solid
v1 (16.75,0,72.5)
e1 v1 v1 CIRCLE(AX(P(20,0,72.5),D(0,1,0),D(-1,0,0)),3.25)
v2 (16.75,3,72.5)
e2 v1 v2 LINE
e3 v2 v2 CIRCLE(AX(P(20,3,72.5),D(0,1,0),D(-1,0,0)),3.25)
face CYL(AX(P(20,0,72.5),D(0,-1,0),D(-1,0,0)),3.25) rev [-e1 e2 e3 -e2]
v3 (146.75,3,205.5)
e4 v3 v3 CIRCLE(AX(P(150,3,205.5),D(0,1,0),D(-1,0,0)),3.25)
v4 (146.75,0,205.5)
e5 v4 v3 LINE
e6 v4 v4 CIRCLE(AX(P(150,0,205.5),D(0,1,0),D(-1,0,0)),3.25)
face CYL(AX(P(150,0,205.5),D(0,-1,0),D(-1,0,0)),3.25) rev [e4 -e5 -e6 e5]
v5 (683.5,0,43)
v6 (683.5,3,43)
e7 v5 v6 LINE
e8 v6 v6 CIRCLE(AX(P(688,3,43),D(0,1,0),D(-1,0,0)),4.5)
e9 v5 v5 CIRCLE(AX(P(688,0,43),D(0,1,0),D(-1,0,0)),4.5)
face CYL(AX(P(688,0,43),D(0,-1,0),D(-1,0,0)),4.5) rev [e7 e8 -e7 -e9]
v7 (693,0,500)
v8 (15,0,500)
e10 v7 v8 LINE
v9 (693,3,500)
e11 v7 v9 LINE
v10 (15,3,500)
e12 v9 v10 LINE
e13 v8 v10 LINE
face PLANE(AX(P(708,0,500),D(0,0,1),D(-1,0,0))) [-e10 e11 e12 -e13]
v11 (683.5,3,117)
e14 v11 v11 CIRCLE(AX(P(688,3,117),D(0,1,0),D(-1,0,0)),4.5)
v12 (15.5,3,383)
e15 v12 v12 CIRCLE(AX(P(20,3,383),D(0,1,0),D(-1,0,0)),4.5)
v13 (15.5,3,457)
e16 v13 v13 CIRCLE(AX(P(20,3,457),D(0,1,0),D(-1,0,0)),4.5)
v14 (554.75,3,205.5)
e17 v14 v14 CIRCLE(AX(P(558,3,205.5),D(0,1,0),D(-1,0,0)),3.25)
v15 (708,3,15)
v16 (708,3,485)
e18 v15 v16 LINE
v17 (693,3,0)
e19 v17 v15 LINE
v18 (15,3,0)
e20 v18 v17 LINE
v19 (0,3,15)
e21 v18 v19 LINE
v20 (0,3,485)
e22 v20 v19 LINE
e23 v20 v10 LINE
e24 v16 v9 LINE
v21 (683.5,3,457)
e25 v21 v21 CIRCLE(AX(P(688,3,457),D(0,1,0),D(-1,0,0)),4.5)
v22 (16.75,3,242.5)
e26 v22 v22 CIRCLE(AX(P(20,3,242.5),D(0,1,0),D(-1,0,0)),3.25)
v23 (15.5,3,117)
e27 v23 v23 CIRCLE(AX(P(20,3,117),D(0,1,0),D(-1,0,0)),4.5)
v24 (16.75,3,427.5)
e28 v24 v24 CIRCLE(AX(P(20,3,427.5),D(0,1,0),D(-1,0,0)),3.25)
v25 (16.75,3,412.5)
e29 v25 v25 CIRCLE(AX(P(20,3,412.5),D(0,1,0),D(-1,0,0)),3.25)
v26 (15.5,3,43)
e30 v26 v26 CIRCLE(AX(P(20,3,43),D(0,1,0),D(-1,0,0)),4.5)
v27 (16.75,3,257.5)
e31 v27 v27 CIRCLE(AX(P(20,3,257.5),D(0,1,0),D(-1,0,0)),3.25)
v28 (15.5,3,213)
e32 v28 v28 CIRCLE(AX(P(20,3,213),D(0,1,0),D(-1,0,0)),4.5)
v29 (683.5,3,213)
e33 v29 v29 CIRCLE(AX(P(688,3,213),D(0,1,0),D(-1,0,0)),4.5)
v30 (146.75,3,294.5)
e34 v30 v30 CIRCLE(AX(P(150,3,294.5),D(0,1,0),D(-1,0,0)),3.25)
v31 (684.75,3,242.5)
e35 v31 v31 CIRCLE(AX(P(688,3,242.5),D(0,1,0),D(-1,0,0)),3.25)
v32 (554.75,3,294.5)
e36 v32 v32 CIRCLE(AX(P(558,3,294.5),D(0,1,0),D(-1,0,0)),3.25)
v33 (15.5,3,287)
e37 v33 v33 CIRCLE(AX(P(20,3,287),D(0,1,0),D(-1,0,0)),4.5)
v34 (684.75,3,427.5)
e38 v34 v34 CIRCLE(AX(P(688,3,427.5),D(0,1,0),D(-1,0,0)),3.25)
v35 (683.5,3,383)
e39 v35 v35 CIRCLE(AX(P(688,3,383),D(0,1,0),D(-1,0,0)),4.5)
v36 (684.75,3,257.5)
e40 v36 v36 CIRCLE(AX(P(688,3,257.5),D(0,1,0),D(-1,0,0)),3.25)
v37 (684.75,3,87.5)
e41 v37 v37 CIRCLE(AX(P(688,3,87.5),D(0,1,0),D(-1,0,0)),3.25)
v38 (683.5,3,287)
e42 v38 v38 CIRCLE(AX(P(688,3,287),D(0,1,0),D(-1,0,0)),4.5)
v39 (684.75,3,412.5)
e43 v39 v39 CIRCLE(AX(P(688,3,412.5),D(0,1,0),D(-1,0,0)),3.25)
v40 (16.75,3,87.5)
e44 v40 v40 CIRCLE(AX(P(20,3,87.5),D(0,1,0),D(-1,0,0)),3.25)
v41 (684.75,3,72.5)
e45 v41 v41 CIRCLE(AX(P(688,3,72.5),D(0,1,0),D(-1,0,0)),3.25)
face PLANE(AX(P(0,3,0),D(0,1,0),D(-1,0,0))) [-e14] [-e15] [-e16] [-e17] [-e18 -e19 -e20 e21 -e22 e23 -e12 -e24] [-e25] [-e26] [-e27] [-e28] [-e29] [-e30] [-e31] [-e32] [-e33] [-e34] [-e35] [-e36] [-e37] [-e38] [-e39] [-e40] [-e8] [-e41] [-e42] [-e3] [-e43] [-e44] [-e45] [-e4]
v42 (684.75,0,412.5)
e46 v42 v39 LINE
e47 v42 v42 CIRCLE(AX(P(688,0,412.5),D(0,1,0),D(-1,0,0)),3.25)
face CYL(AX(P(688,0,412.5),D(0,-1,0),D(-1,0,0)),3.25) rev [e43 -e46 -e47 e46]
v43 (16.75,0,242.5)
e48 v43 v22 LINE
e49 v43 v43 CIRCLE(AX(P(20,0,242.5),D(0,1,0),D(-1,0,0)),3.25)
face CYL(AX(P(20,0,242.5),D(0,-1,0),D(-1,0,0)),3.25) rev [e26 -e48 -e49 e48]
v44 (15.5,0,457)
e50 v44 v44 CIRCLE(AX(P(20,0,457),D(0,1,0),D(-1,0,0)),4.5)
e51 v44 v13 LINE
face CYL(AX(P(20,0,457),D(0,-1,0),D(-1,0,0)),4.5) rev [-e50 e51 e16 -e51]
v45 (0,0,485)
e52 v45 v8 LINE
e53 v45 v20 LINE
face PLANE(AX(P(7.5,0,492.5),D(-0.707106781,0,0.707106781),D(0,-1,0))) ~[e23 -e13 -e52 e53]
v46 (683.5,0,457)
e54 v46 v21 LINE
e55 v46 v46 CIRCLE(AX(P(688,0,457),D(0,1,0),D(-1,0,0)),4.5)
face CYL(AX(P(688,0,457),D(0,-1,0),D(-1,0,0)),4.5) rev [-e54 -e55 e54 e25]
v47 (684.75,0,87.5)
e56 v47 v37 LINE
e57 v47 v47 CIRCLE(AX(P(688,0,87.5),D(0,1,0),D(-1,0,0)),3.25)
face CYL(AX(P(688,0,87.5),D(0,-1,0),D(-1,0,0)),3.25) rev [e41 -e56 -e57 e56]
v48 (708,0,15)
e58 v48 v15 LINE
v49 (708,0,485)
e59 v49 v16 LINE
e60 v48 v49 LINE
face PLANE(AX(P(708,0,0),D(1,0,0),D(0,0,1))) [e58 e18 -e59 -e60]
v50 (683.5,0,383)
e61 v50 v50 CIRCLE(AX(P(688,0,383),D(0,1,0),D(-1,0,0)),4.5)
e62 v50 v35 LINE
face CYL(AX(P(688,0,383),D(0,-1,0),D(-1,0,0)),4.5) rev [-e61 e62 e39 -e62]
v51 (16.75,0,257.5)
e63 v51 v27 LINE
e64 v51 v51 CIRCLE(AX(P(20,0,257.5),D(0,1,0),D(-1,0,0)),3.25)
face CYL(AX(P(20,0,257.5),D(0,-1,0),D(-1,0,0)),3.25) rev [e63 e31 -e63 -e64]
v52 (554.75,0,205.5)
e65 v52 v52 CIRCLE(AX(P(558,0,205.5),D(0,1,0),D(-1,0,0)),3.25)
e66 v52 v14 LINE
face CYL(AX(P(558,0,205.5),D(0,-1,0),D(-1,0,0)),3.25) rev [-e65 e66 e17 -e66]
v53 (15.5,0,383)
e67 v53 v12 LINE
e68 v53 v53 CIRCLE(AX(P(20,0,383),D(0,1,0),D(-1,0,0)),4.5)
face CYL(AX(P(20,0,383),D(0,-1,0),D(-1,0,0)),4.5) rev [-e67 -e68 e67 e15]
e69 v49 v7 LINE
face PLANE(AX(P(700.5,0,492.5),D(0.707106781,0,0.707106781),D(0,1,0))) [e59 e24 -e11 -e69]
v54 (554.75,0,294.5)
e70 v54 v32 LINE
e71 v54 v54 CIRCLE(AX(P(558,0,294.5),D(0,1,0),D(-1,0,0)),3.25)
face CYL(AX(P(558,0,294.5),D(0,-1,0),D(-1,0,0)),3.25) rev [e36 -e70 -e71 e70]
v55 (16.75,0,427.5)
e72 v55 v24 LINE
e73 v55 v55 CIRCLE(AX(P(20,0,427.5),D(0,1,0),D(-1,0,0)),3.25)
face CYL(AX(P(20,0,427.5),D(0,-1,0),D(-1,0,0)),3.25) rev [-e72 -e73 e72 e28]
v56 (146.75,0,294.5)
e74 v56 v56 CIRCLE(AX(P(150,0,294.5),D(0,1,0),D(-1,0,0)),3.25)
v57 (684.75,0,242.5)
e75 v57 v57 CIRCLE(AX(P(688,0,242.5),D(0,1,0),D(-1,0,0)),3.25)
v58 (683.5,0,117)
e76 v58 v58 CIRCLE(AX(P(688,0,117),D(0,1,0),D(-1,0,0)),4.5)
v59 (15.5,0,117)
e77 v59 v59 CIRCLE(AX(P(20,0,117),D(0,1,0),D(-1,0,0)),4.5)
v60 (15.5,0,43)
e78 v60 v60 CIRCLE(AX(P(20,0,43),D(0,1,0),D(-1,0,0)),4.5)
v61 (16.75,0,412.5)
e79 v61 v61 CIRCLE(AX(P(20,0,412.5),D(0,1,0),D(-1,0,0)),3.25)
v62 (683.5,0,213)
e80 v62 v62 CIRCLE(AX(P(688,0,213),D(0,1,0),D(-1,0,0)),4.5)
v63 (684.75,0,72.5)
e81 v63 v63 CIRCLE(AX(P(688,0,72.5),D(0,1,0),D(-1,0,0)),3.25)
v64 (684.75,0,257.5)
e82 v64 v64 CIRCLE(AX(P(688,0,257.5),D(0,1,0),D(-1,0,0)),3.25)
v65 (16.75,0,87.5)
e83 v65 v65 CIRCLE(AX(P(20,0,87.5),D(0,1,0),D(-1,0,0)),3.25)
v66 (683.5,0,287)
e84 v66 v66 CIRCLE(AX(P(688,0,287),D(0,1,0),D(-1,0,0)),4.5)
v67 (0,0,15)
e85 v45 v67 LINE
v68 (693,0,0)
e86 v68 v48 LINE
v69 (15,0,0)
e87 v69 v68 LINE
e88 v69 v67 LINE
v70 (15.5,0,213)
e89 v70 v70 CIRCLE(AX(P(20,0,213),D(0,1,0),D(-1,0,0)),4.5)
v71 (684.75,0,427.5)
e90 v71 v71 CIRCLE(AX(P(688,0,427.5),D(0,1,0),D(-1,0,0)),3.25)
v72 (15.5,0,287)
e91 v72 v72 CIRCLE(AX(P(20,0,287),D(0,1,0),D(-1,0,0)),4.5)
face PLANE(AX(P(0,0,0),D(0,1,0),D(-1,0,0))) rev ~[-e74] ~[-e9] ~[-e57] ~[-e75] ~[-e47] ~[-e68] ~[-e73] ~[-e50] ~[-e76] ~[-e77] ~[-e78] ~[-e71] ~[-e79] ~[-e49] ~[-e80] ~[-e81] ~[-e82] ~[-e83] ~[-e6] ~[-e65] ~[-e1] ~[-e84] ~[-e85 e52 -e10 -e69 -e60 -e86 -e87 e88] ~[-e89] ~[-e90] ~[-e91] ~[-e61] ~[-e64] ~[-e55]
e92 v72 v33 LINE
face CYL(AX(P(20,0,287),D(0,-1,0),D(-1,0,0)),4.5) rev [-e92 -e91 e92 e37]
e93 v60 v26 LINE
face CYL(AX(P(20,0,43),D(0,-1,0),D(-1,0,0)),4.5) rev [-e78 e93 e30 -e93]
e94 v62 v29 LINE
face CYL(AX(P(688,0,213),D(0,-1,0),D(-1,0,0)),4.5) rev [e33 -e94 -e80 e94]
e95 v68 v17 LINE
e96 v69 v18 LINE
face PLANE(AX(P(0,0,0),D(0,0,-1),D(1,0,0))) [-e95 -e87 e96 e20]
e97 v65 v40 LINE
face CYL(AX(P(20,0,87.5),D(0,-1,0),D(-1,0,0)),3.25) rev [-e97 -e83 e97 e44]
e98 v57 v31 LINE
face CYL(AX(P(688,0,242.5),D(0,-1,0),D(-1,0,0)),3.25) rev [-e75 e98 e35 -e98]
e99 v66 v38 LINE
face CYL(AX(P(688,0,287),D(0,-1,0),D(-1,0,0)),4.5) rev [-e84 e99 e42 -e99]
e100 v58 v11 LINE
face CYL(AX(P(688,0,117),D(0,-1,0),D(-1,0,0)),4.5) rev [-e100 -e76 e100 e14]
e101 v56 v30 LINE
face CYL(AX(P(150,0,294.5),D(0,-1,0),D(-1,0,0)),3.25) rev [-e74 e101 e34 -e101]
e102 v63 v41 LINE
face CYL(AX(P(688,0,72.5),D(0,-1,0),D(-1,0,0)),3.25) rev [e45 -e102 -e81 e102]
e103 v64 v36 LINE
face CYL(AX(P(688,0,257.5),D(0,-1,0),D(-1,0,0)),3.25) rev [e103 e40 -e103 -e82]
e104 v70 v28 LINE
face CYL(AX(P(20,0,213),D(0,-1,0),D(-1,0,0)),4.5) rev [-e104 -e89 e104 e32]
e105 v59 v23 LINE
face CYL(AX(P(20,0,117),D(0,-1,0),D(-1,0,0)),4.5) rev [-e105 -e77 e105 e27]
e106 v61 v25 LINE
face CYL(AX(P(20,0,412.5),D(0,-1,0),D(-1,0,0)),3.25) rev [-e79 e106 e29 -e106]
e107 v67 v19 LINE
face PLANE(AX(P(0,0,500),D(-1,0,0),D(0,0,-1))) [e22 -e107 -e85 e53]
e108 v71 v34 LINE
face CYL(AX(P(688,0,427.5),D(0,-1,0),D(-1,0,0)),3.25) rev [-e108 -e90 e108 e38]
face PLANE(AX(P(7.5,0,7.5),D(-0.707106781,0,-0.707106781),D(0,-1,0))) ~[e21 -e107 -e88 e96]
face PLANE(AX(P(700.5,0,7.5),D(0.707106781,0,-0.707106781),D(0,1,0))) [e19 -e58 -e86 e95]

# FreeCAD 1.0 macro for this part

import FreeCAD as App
import Part
import Sketcher
from FreeCAD import Vector
Q = App.Units.Quantity


def edges_at(feature, points):
    """Names of the edges that pass closest to the given points."""
    edges = feature.Shape.Edges
    near = lambda p: min(range(len(edges)), key=lambda i: edges[i].distToShape(Part.Vertex(*p))[0])
    return sorted({f"Edge{near(p) + 1}" for p in points})

doc = App.newDocument("Part")
params = doc.addObject("Spreadsheet::Sheet", "Params")
for row, (alias, value) in enumerate([
    ("sketch1_diameter", "9 mm"),
    ("sketch1_diameter2", "6.5 mm"),
    ("sketch1_width", "708 mm"),
    ("sketch1_height", "500 mm"),
    ("pad1_length", "3 mm"),
    ("chamfer_size", "15 mm"),
], start=1):
    params.set(f"A{row}", alias)
    params.set(f"B{row}", "=" + value)
    params.setAlias(f"B{row}", alias)

body = doc.addObject("PartDesign::Body", "Body")

# Sketch on XZ plane
sketch1 = body.newObject("Sketcher::SketchObject", "Sketch")
sketch1.AttachmentSupport = (doc.getObject("XZ_Plane"), [""])
sketch1.MapMode = "FlatFace"
sketch1.addGeometry([
    Part.LineSegment(Vector(708, 0, 0), Vector(0, 0, 0)),  # 0
    Part.LineSegment(Vector(0, 0, 0), Vector(0, 500, 0)),  # 1
    Part.LineSegment(Vector(0, 500, 0), Vector(708, 500, 0)),  # 2
    Part.LineSegment(Vector(708, 500, 0), Vector(708, 0, 0)),  # 3
    Part.Circle(Vector(688, 43, 0), Vector(0, 0, 1), 4.5),  # 4
    Part.Circle(Vector(688, 72.5, 0), Vector(0, 0, 1), 3.25),  # 5
    Part.Circle(Vector(688, 87.5, 0), Vector(0, 0, 1), 3.25),  # 6
    Part.Circle(Vector(688, 117, 0), Vector(0, 0, 1), 4.5),  # 7
    Part.Circle(Vector(688, 213, 0), Vector(0, 0, 1), 4.5),  # 8
    Part.Circle(Vector(688, 242.5, 0), Vector(0, 0, 1), 3.25),  # 9
    Part.Circle(Vector(558, 205.5, 0), Vector(0, 0, 1), 3.25),  # 10
    Part.Circle(Vector(20, 43, 0), Vector(0, 0, 1), 4.5),  # 11
    Part.Circle(Vector(20, 72.5, 0), Vector(0, 0, 1), 3.25),  # 12
    Part.Circle(Vector(20, 87.5, 0), Vector(0, 0, 1), 3.25),  # 13
    Part.Circle(Vector(20, 117, 0), Vector(0, 0, 1), 4.5),  # 14
    Part.Circle(Vector(150, 205.5, 0), Vector(0, 0, 1), 3.25),  # 15
    Part.Circle(Vector(20, 213, 0), Vector(0, 0, 1), 4.5),  # 16
    Part.Circle(Vector(20, 242.5, 0), Vector(0, 0, 1), 3.25),  # 17
    Part.Circle(Vector(688, 257.5, 0), Vector(0, 0, 1), 3.25),  # 18
    Part.Circle(Vector(688, 287, 0), Vector(0, 0, 1), 4.5),  # 19
    Part.Circle(Vector(558, 294.5, 0), Vector(0, 0, 1), 3.25),  # 20
    Part.Circle(Vector(688, 383, 0), Vector(0, 0, 1), 4.5),  # 21
    Part.Circle(Vector(688, 412.5, 0), Vector(0, 0, 1), 3.25),  # 22
    Part.Circle(Vector(688, 427.5, 0), Vector(0, 0, 1), 3.25),  # 23
    Part.Circle(Vector(688, 457, 0), Vector(0, 0, 1), 4.5),  # 24
    Part.Circle(Vector(150, 294.5, 0), Vector(0, 0, 1), 3.25),  # 25
    Part.Circle(Vector(20, 257.5, 0), Vector(0, 0, 1), 3.25),  # 26
    Part.Circle(Vector(20, 287, 0), Vector(0, 0, 1), 4.5),  # 27
    Part.Circle(Vector(20, 383, 0), Vector(0, 0, 1), 4.5),  # 28
    Part.Circle(Vector(20, 412.5, 0), Vector(0, 0, 1), 3.25),  # 29
    Part.Circle(Vector(20, 427.5, 0), Vector(0, 0, 1), 3.25),  # 30
    Part.Circle(Vector(20, 457, 0), Vector(0, 0, 1), 4.5),  # 31
], False)
sketch1.addConstraint([
    Sketcher.Constraint("Coincident", 0, 2, 1, 1),
    Sketcher.Constraint("Coincident", 1, 2, 2, 1),
    Sketcher.Constraint("Coincident", 2, 2, 3, 1),
    Sketcher.Constraint("Coincident", 3, 2, 0, 1),
    Sketcher.Constraint("Horizontal", 0),
    Sketcher.Constraint("Vertical", 1),
    Sketcher.Constraint("Horizontal", 2),
    Sketcher.Constraint("Vertical", 3),
    Sketcher.Constraint("Coincident", 0, 2, -1, 1),
    Sketcher.Constraint("Equal", 5, 6),
    Sketcher.Constraint("Equal", 4, 7),
    Sketcher.Constraint("Equal", 7, 8),
    Sketcher.Constraint("Equal", 6, 9),
    Sketcher.Constraint("Equal", 9, 10),
    Sketcher.Constraint("Equal", 8, 11),
    Sketcher.Constraint("Equal", 10, 12),
    Sketcher.Constraint("Equal", 12, 13),
    Sketcher.Constraint("Equal", 11, 14),
    Sketcher.Constraint("Equal", 13, 15),
    Sketcher.Constraint("Equal", 14, 16),
    Sketcher.Constraint("Equal", 15, 17),
    Sketcher.Constraint("Equal", 17, 18),
    Sketcher.Constraint("Equal", 16, 19),
    Sketcher.Constraint("Equal", 18, 20),
    Sketcher.Constraint("Equal", 19, 21),
    Sketcher.Constraint("Equal", 20, 22),
    Sketcher.Constraint("Equal", 22, 23),
    Sketcher.Constraint("Equal", 21, 24),
    Sketcher.Constraint("Equal", 23, 25),
    Sketcher.Constraint("Equal", 25, 26),
    Sketcher.Constraint("Equal", 24, 27),
    Sketcher.Constraint("Equal", 27, 28),
    Sketcher.Constraint("Equal", 26, 29),
    Sketcher.Constraint("Equal", 29, 30),
    Sketcher.Constraint("Equal", 28, 31),
    Sketcher.Constraint("Horizontal", 4, 3, 11, 3),
    Sketcher.Constraint("Horizontal", 5, 3, 12, 3),
    Sketcher.Constraint("Horizontal", 6, 3, 13, 3),
    Sketcher.Constraint("Horizontal", 7, 3, 14, 3),
    Sketcher.Constraint("Horizontal", 10, 3, 15, 3),
    Sketcher.Constraint("Horizontal", 8, 3, 16, 3),
    Sketcher.Constraint("Horizontal", 9, 3, 17, 3),
    Sketcher.Constraint("Horizontal", 20, 3, 25, 3),
    Sketcher.Constraint("Horizontal", 18, 3, 26, 3),
    Sketcher.Constraint("Horizontal", 19, 3, 27, 3),
    Sketcher.Constraint("Horizontal", 21, 3, 28, 3),
    Sketcher.Constraint("Horizontal", 22, 3, 29, 3),
    Sketcher.Constraint("Horizontal", 23, 3, 30, 3),
    Sketcher.Constraint("Horizontal", 24, 3, 31, 3),
    Sketcher.Constraint("Vertical", 4, 3, 5, 3),
    Sketcher.Constraint("Vertical", 5, 3, 6, 3),
    Sketcher.Constraint("Vertical", 6, 3, 7, 3),
    Sketcher.Constraint("Vertical", 7, 3, 8, 3),
    Sketcher.Constraint("Vertical", 8, 3, 9, 3),
    Sketcher.Constraint("Vertical", 11, 3, 12, 3),
    Sketcher.Constraint("Vertical", 12, 3, 13, 3),
    Sketcher.Constraint("Vertical", 13, 3, 14, 3),
    Sketcher.Constraint("Vertical", 14, 3, 16, 3),
    Sketcher.Constraint("Vertical", 16, 3, 17, 3),
    Sketcher.Constraint("Vertical", 9, 3, 18, 3),
    Sketcher.Constraint("Vertical", 18, 3, 19, 3),
    Sketcher.Constraint("Vertical", 10, 3, 20, 3),
    Sketcher.Constraint("Vertical", 19, 3, 21, 3),
    Sketcher.Constraint("Vertical", 21, 3, 22, 3),
    Sketcher.Constraint("Vertical", 22, 3, 23, 3),
    Sketcher.Constraint("Vertical", 23, 3, 24, 3),
    Sketcher.Constraint("Vertical", 15, 3, 25, 3),
    Sketcher.Constraint("Vertical", 17, 3, 26, 3),
    Sketcher.Constraint("Vertical", 26, 3, 27, 3),
    Sketcher.Constraint("Vertical", 27, 3, 28, 3),
    Sketcher.Constraint("Vertical", 28, 3, 29, 3),
    Sketcher.Constraint("Vertical", 29, 3, 30, 3),
    Sketcher.Constraint("Vertical", 30, 3, 31, 3),
    Sketcher.Constraint("Diameter", 4, Q("9 mm")),
    Sketcher.Constraint("Diameter", 5, Q("6.5 mm")),
    Sketcher.Constraint("DistanceX", 0, 2, 0, 1, Q("708 mm")),
    Sketcher.Constraint("DistanceY", 1, 1, 1, 2, Q("500 mm")),
    Sketcher.Constraint("DistanceX", -1, 1, 11, 3, Q("20 mm")),
    Sketcher.Constraint("DistanceX", -1, 1, 15, 3, Q("150 mm")),
    Sketcher.Constraint("DistanceY", 10, 3, 9, 3, Q("37 mm")),
    Sketcher.Constraint("DistanceY", 18, 3, 20, 3, Q("37 mm")),
    Sketcher.Constraint("DistanceX", 24, 3, 2, 2, Q("20 mm")),
    Sketcher.Constraint("DistanceY", 4, 3, 6, 3, Q("44.5 mm")),
    Sketcher.Constraint("DistanceY", 5, 3, 7, 3, Q("44.5 mm")),
    Sketcher.Constraint("DistanceY", 10, 3, 8, 3, Q("7.5 mm")),
    Sketcher.Constraint("DistanceY", 8, 3, 18, 3, Q("44.5 mm")),
    Sketcher.Constraint("DistanceY", 9, 3, 19, 3, Q("44.5 mm")),
    Sketcher.Constraint("DistanceY", 21, 3, 23, 3, Q("44.5 mm")),
    Sketcher.Constraint("DistanceY", 22, 3, 24, 3, Q("44.5 mm")),
    Sketcher.Constraint("DistanceY", -1, 1, 4, 3, Q("43 mm")),
    Sketcher.Constraint("DistanceY", -1, 1, 7, 3, Q("117 mm")),
    Sketcher.Constraint("DistanceY", -1, 1, 8, 3, Q("213 mm")),
    Sketcher.Constraint("DistanceX", -1, 1, 10, 3, Q("558 mm")),
    Sketcher.Constraint("DistanceY", -1, 1, 21, 3, Q("383 mm")),
    Sketcher.Constraint("DistanceY", -1, 1, 24, 3, Q("457 mm")),
])
sketch1.setExpression("Constraints[73]", "Params.sketch1_diameter")
sketch1.setExpression("Constraints[74]", "Params.sketch1_diameter2")
sketch1.setExpression("Constraints[75]", "Params.sketch1_width")
sketch1.setExpression("Constraints[76]", "Params.sketch1_height")
pad1 = body.newObject("PartDesign::Pad", "Pad")
pad1.Profile = sketch1
pad1.setExpression("Length", "Params.pad1_length")
pad1.Reversed = True
doc.recompute()

chamfer = body.newObject("PartDesign::Chamfer", "Chamfer")
chamfer.Base = (pad1, edges_at(pad1, [
    (0, 1.5, 500),
    (708, 1.5, 500),
    (708, 1.5, 0),
    (0, 1.5, 0),
]))
chamfer.setExpression("Size", "Params.chamfer_size")

doc.recompute()
